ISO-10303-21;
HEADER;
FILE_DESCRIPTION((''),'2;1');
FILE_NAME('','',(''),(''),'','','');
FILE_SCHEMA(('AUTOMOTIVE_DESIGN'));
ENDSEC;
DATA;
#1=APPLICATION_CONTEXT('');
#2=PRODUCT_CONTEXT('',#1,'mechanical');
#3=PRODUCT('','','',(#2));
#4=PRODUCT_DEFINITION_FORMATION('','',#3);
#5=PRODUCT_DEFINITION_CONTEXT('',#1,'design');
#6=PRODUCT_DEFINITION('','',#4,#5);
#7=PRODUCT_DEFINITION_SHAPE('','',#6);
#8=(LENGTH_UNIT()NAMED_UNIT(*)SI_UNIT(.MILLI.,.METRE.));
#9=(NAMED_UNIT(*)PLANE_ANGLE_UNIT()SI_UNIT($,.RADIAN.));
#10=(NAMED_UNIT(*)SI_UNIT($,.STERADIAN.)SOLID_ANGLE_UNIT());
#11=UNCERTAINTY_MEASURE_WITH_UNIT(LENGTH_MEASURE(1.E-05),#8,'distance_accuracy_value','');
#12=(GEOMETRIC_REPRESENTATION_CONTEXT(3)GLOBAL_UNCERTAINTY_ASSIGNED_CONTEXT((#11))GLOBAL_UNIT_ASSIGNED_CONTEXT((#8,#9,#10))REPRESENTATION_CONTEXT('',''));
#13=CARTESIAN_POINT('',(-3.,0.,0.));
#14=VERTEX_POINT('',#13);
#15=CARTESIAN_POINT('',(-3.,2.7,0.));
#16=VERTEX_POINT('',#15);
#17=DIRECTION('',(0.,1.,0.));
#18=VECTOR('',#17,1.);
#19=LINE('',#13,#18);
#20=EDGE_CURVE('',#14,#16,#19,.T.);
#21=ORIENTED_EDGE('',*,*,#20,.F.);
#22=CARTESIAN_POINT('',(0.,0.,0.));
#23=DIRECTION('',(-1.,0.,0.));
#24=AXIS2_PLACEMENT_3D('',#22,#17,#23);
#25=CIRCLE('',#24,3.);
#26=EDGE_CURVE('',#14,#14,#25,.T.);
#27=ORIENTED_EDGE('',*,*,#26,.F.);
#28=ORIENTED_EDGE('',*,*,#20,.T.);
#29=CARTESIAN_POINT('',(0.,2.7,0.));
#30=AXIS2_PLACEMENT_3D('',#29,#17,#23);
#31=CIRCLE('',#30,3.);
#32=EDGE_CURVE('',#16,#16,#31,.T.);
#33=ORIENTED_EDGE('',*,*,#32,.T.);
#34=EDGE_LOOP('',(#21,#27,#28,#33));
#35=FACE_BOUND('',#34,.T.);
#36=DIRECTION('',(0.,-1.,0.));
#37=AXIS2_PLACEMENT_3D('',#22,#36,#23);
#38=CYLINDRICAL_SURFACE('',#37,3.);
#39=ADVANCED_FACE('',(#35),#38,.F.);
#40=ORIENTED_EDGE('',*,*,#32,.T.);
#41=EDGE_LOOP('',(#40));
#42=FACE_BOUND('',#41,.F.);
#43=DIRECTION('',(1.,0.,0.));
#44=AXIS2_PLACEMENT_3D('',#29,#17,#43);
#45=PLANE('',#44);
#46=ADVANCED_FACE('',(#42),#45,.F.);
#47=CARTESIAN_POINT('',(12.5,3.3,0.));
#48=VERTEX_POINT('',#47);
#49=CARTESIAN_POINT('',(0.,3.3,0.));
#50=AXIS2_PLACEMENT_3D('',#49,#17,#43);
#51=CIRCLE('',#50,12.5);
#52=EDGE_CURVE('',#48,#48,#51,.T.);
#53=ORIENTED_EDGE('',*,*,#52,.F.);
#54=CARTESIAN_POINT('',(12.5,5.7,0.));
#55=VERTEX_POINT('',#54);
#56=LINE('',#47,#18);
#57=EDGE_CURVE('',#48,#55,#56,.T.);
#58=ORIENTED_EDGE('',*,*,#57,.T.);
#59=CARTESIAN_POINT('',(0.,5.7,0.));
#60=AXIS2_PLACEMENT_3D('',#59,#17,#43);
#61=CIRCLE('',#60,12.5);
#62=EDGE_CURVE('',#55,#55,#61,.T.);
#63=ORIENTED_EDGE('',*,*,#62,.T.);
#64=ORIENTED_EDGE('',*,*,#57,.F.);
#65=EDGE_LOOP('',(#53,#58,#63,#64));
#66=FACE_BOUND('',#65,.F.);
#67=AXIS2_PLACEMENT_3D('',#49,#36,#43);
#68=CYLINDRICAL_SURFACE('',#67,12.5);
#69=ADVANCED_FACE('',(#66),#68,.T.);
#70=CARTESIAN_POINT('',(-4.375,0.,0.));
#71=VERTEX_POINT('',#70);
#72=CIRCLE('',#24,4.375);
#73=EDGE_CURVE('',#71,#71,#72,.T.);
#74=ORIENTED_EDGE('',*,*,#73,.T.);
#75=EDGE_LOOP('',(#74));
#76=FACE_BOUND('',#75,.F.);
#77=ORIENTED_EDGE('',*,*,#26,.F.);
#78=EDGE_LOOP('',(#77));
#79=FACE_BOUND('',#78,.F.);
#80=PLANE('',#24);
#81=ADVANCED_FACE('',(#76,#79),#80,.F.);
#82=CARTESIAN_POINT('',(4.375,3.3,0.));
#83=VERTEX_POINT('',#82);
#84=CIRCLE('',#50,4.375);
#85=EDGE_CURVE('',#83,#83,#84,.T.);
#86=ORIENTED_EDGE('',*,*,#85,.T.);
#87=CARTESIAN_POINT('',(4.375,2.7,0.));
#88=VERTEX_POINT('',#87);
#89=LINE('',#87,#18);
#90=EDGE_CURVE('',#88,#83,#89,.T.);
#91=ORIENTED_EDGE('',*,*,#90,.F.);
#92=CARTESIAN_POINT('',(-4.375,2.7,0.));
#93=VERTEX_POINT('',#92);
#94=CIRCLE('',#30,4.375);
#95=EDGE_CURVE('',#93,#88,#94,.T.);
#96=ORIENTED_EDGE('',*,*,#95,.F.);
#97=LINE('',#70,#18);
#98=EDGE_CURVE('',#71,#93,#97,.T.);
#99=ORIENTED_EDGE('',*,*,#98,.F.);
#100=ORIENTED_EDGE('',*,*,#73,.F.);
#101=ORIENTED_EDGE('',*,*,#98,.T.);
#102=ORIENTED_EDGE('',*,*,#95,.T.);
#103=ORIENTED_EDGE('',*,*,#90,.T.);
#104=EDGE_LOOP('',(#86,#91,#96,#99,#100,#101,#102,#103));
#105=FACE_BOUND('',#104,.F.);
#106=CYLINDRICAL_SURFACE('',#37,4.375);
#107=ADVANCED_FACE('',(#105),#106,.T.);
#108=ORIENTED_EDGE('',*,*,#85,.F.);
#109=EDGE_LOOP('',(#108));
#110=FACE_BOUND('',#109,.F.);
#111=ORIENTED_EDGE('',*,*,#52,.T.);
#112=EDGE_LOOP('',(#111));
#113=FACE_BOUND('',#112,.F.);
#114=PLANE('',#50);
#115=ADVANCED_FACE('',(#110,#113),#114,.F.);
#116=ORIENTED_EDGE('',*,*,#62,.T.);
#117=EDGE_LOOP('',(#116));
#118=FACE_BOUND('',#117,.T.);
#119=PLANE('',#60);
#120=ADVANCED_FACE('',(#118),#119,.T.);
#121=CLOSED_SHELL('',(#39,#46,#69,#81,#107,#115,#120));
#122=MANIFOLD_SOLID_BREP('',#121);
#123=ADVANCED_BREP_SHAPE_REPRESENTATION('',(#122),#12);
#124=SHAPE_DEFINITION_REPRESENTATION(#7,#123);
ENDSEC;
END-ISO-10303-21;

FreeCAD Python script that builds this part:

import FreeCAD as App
import Part
import Sketcher
from FreeCAD import Vector

doc = App.newDocument("Part")
params = doc.addObject("Spreadsheet::Sheet", "Params")
for row, (alias, value) in enumerate([
    ("sketch1_diameter", "6 mm"),
    ("sketch1_diameter2", "8.75 mm"),
    ("pad1_length", "2.7 mm"),
    ("sketch2_diameter", "8.75 mm"),
    ("pad2_length", "0.6 mm"),
    ("sketch3_diameter", "25 mm"),
    ("pad3_length", "2.4 mm"),
], start=1):
    params.set(f"A{row}", alias)
    params.set(f"B{row}", "=" + value)
    params.setAlias(f"B{row}", alias)

body = doc.addObject("PartDesign::Body", "Body")

# Sketch on XZ plane
sketch1 = body.newObject("Sketcher::SketchObject", "Sketch")
sketch1.AttachmentSupport = (doc.getObject("XZ_Plane"), [""])
sketch1.MapMode = "FlatFace"
sketch1.addGeometry([
    Part.Circle(Vector(0, 0, 0), Vector(0, 0, 1), 4.375),
    Part.Circle(Vector(0, 0, 0), Vector(0, 0, 1), 3),
], False)
sketch1.addConstraint([
    Sketcher.Constraint("Coincident", 0, 3, -1, 1),
    Sketcher.Constraint("Coincident", 1, 3, -1, 1),
    Sketcher.Constraint("Diameter", 1, 6.0),
    Sketcher.Constraint("Diameter", 0, 8.75),
])
sketch1.setExpression("Constraints[2]", "Params.sketch1_diameter")
sketch1.setExpression("Constraints[3]", "Params.sketch1_diameter2")
pad1 = body.newObject("PartDesign::Pad", "Pad")
pad1.Profile = sketch1
pad1.setExpression("Length", "Params.pad1_length")
pad1.Reversed = True

# Sketch on XZ plane
sketch2 = body.newObject("Sketcher::SketchObject", "Sketch001")
sketch2.AttachmentSupport = (doc.getObject("XZ_Plane"), [""])
sketch2.MapMode = "FlatFace"
sketch2.AttachmentOffset = App.Placement(Vector(0, 0, -2.7), App.Rotation())
sketch2.addGeometry(Part.Circle(Vector(0, 0, 0), Vector(0, 0, 1), 4.375), False)
sketch2.addConstraint([
    Sketcher.Constraint("Coincident", 0, 3, -1, 1),
    Sketcher.Constraint("Diameter", 0, 8.75),
])
sketch2.setExpression("Constraints[1]", "Params.sketch2_diameter")
pad2 = body.newObject("PartDesign::Pad", "Pad001")
pad2.Profile = sketch2
pad2.setExpression("Length", "Params.pad2_length")
pad2.Reversed = True

# Sketch on XZ plane
sketch3 = body.newObject("Sketcher::SketchObject", "Sketch002")
sketch3.AttachmentSupport = (doc.getObject("XZ_Plane"), [""])
sketch3.MapMode = "FlatFace"
sketch3.AttachmentOffset = App.Placement(Vector(0, 0, -3.3), App.Rotation())
sketch3.addGeometry(Part.Circle(Vector(0, 0, 0), Vector(0, 0, 1), 12.5), False)
sketch3.addConstraint([
    Sketcher.Constraint("Coincident", 0, 3, -1, 1),
    Sketcher.Constraint("Diameter", 0, 25.0),
])
sketch3.setExpression("Constraints[1]", "Params.sketch3_diameter")
pad3 = body.newObject("PartDesign::Pad", "Pad002")
pad3.Profile = sketch3
pad3.setExpression("Length", "Params.pad3_length")
pad3.Reversed = True

doc.recompute()
